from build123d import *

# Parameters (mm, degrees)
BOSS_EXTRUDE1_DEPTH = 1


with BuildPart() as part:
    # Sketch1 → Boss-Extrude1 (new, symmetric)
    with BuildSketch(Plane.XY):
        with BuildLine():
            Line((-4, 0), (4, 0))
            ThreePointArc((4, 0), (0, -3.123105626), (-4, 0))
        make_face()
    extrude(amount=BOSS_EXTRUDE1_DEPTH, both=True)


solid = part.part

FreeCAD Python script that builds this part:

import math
import FreeCAD as App
import Part
import Sketcher
from FreeCAD import Vector
Q = App.Units.Quantity

doc = App.newDocument("Part")
params = doc.addObject("Spreadsheet::Sheet", "Params")
for row, (alias, value) in enumerate([
    ("sketch1_width", "8 mm"),
    ("pad1_length", "2 mm"),
], start=1):
    params.set(f"A{row}", alias)
    params.set(f"B{row}", "=" + value)
    params.setAlias(f"B{row}", alias)

body = doc.addObject("PartDesign::Body", "Body")

sketch1 = body.newObject("Sketcher::SketchObject", "Sketch")
sketch1.AttachmentSupport = (doc.getObject("XY_Plane"), [""])
sketch1.MapMode = "FlatFace"
sketch1.addGeometry([
    Part.LineSegment(Vector(4, 0, 0), Vector(-4, 0, 0)),
    Part.ArcOfCircle(Part.Circle(Vector(0, 1, 0), Vector(0, 0, 1), 4.1), math.radians(-166), math.radians(-14)),
], False)
sketch1.addConstraint([
    Sketcher.Constraint("Coincident", 0, 1, 1, 2),
    Sketcher.Constraint("Coincident", 1, 1, 0, 2),
    Sketcher.Constraint("Horizontal", 0),
    Sketcher.Constraint("Symmetric", 0, 1, 1, 1, -1, 1),
    Sketcher.Constraint("DistanceX", 0, 2, 0, 1, Q("8 mm")),
    Sketcher.Constraint("DistanceY", -1, 1, 1, 3, Q("1 mm")),
])
sketch1.setExpression("Constraints[4]", "Params.sketch1_width")
pad1 = body.newObject("PartDesign::Pad", "Pad")
pad1.Profile = sketch1
pad1.setExpression("Length", "Params.pad1_length")
pad1.Midplane = True

doc.recompute()
